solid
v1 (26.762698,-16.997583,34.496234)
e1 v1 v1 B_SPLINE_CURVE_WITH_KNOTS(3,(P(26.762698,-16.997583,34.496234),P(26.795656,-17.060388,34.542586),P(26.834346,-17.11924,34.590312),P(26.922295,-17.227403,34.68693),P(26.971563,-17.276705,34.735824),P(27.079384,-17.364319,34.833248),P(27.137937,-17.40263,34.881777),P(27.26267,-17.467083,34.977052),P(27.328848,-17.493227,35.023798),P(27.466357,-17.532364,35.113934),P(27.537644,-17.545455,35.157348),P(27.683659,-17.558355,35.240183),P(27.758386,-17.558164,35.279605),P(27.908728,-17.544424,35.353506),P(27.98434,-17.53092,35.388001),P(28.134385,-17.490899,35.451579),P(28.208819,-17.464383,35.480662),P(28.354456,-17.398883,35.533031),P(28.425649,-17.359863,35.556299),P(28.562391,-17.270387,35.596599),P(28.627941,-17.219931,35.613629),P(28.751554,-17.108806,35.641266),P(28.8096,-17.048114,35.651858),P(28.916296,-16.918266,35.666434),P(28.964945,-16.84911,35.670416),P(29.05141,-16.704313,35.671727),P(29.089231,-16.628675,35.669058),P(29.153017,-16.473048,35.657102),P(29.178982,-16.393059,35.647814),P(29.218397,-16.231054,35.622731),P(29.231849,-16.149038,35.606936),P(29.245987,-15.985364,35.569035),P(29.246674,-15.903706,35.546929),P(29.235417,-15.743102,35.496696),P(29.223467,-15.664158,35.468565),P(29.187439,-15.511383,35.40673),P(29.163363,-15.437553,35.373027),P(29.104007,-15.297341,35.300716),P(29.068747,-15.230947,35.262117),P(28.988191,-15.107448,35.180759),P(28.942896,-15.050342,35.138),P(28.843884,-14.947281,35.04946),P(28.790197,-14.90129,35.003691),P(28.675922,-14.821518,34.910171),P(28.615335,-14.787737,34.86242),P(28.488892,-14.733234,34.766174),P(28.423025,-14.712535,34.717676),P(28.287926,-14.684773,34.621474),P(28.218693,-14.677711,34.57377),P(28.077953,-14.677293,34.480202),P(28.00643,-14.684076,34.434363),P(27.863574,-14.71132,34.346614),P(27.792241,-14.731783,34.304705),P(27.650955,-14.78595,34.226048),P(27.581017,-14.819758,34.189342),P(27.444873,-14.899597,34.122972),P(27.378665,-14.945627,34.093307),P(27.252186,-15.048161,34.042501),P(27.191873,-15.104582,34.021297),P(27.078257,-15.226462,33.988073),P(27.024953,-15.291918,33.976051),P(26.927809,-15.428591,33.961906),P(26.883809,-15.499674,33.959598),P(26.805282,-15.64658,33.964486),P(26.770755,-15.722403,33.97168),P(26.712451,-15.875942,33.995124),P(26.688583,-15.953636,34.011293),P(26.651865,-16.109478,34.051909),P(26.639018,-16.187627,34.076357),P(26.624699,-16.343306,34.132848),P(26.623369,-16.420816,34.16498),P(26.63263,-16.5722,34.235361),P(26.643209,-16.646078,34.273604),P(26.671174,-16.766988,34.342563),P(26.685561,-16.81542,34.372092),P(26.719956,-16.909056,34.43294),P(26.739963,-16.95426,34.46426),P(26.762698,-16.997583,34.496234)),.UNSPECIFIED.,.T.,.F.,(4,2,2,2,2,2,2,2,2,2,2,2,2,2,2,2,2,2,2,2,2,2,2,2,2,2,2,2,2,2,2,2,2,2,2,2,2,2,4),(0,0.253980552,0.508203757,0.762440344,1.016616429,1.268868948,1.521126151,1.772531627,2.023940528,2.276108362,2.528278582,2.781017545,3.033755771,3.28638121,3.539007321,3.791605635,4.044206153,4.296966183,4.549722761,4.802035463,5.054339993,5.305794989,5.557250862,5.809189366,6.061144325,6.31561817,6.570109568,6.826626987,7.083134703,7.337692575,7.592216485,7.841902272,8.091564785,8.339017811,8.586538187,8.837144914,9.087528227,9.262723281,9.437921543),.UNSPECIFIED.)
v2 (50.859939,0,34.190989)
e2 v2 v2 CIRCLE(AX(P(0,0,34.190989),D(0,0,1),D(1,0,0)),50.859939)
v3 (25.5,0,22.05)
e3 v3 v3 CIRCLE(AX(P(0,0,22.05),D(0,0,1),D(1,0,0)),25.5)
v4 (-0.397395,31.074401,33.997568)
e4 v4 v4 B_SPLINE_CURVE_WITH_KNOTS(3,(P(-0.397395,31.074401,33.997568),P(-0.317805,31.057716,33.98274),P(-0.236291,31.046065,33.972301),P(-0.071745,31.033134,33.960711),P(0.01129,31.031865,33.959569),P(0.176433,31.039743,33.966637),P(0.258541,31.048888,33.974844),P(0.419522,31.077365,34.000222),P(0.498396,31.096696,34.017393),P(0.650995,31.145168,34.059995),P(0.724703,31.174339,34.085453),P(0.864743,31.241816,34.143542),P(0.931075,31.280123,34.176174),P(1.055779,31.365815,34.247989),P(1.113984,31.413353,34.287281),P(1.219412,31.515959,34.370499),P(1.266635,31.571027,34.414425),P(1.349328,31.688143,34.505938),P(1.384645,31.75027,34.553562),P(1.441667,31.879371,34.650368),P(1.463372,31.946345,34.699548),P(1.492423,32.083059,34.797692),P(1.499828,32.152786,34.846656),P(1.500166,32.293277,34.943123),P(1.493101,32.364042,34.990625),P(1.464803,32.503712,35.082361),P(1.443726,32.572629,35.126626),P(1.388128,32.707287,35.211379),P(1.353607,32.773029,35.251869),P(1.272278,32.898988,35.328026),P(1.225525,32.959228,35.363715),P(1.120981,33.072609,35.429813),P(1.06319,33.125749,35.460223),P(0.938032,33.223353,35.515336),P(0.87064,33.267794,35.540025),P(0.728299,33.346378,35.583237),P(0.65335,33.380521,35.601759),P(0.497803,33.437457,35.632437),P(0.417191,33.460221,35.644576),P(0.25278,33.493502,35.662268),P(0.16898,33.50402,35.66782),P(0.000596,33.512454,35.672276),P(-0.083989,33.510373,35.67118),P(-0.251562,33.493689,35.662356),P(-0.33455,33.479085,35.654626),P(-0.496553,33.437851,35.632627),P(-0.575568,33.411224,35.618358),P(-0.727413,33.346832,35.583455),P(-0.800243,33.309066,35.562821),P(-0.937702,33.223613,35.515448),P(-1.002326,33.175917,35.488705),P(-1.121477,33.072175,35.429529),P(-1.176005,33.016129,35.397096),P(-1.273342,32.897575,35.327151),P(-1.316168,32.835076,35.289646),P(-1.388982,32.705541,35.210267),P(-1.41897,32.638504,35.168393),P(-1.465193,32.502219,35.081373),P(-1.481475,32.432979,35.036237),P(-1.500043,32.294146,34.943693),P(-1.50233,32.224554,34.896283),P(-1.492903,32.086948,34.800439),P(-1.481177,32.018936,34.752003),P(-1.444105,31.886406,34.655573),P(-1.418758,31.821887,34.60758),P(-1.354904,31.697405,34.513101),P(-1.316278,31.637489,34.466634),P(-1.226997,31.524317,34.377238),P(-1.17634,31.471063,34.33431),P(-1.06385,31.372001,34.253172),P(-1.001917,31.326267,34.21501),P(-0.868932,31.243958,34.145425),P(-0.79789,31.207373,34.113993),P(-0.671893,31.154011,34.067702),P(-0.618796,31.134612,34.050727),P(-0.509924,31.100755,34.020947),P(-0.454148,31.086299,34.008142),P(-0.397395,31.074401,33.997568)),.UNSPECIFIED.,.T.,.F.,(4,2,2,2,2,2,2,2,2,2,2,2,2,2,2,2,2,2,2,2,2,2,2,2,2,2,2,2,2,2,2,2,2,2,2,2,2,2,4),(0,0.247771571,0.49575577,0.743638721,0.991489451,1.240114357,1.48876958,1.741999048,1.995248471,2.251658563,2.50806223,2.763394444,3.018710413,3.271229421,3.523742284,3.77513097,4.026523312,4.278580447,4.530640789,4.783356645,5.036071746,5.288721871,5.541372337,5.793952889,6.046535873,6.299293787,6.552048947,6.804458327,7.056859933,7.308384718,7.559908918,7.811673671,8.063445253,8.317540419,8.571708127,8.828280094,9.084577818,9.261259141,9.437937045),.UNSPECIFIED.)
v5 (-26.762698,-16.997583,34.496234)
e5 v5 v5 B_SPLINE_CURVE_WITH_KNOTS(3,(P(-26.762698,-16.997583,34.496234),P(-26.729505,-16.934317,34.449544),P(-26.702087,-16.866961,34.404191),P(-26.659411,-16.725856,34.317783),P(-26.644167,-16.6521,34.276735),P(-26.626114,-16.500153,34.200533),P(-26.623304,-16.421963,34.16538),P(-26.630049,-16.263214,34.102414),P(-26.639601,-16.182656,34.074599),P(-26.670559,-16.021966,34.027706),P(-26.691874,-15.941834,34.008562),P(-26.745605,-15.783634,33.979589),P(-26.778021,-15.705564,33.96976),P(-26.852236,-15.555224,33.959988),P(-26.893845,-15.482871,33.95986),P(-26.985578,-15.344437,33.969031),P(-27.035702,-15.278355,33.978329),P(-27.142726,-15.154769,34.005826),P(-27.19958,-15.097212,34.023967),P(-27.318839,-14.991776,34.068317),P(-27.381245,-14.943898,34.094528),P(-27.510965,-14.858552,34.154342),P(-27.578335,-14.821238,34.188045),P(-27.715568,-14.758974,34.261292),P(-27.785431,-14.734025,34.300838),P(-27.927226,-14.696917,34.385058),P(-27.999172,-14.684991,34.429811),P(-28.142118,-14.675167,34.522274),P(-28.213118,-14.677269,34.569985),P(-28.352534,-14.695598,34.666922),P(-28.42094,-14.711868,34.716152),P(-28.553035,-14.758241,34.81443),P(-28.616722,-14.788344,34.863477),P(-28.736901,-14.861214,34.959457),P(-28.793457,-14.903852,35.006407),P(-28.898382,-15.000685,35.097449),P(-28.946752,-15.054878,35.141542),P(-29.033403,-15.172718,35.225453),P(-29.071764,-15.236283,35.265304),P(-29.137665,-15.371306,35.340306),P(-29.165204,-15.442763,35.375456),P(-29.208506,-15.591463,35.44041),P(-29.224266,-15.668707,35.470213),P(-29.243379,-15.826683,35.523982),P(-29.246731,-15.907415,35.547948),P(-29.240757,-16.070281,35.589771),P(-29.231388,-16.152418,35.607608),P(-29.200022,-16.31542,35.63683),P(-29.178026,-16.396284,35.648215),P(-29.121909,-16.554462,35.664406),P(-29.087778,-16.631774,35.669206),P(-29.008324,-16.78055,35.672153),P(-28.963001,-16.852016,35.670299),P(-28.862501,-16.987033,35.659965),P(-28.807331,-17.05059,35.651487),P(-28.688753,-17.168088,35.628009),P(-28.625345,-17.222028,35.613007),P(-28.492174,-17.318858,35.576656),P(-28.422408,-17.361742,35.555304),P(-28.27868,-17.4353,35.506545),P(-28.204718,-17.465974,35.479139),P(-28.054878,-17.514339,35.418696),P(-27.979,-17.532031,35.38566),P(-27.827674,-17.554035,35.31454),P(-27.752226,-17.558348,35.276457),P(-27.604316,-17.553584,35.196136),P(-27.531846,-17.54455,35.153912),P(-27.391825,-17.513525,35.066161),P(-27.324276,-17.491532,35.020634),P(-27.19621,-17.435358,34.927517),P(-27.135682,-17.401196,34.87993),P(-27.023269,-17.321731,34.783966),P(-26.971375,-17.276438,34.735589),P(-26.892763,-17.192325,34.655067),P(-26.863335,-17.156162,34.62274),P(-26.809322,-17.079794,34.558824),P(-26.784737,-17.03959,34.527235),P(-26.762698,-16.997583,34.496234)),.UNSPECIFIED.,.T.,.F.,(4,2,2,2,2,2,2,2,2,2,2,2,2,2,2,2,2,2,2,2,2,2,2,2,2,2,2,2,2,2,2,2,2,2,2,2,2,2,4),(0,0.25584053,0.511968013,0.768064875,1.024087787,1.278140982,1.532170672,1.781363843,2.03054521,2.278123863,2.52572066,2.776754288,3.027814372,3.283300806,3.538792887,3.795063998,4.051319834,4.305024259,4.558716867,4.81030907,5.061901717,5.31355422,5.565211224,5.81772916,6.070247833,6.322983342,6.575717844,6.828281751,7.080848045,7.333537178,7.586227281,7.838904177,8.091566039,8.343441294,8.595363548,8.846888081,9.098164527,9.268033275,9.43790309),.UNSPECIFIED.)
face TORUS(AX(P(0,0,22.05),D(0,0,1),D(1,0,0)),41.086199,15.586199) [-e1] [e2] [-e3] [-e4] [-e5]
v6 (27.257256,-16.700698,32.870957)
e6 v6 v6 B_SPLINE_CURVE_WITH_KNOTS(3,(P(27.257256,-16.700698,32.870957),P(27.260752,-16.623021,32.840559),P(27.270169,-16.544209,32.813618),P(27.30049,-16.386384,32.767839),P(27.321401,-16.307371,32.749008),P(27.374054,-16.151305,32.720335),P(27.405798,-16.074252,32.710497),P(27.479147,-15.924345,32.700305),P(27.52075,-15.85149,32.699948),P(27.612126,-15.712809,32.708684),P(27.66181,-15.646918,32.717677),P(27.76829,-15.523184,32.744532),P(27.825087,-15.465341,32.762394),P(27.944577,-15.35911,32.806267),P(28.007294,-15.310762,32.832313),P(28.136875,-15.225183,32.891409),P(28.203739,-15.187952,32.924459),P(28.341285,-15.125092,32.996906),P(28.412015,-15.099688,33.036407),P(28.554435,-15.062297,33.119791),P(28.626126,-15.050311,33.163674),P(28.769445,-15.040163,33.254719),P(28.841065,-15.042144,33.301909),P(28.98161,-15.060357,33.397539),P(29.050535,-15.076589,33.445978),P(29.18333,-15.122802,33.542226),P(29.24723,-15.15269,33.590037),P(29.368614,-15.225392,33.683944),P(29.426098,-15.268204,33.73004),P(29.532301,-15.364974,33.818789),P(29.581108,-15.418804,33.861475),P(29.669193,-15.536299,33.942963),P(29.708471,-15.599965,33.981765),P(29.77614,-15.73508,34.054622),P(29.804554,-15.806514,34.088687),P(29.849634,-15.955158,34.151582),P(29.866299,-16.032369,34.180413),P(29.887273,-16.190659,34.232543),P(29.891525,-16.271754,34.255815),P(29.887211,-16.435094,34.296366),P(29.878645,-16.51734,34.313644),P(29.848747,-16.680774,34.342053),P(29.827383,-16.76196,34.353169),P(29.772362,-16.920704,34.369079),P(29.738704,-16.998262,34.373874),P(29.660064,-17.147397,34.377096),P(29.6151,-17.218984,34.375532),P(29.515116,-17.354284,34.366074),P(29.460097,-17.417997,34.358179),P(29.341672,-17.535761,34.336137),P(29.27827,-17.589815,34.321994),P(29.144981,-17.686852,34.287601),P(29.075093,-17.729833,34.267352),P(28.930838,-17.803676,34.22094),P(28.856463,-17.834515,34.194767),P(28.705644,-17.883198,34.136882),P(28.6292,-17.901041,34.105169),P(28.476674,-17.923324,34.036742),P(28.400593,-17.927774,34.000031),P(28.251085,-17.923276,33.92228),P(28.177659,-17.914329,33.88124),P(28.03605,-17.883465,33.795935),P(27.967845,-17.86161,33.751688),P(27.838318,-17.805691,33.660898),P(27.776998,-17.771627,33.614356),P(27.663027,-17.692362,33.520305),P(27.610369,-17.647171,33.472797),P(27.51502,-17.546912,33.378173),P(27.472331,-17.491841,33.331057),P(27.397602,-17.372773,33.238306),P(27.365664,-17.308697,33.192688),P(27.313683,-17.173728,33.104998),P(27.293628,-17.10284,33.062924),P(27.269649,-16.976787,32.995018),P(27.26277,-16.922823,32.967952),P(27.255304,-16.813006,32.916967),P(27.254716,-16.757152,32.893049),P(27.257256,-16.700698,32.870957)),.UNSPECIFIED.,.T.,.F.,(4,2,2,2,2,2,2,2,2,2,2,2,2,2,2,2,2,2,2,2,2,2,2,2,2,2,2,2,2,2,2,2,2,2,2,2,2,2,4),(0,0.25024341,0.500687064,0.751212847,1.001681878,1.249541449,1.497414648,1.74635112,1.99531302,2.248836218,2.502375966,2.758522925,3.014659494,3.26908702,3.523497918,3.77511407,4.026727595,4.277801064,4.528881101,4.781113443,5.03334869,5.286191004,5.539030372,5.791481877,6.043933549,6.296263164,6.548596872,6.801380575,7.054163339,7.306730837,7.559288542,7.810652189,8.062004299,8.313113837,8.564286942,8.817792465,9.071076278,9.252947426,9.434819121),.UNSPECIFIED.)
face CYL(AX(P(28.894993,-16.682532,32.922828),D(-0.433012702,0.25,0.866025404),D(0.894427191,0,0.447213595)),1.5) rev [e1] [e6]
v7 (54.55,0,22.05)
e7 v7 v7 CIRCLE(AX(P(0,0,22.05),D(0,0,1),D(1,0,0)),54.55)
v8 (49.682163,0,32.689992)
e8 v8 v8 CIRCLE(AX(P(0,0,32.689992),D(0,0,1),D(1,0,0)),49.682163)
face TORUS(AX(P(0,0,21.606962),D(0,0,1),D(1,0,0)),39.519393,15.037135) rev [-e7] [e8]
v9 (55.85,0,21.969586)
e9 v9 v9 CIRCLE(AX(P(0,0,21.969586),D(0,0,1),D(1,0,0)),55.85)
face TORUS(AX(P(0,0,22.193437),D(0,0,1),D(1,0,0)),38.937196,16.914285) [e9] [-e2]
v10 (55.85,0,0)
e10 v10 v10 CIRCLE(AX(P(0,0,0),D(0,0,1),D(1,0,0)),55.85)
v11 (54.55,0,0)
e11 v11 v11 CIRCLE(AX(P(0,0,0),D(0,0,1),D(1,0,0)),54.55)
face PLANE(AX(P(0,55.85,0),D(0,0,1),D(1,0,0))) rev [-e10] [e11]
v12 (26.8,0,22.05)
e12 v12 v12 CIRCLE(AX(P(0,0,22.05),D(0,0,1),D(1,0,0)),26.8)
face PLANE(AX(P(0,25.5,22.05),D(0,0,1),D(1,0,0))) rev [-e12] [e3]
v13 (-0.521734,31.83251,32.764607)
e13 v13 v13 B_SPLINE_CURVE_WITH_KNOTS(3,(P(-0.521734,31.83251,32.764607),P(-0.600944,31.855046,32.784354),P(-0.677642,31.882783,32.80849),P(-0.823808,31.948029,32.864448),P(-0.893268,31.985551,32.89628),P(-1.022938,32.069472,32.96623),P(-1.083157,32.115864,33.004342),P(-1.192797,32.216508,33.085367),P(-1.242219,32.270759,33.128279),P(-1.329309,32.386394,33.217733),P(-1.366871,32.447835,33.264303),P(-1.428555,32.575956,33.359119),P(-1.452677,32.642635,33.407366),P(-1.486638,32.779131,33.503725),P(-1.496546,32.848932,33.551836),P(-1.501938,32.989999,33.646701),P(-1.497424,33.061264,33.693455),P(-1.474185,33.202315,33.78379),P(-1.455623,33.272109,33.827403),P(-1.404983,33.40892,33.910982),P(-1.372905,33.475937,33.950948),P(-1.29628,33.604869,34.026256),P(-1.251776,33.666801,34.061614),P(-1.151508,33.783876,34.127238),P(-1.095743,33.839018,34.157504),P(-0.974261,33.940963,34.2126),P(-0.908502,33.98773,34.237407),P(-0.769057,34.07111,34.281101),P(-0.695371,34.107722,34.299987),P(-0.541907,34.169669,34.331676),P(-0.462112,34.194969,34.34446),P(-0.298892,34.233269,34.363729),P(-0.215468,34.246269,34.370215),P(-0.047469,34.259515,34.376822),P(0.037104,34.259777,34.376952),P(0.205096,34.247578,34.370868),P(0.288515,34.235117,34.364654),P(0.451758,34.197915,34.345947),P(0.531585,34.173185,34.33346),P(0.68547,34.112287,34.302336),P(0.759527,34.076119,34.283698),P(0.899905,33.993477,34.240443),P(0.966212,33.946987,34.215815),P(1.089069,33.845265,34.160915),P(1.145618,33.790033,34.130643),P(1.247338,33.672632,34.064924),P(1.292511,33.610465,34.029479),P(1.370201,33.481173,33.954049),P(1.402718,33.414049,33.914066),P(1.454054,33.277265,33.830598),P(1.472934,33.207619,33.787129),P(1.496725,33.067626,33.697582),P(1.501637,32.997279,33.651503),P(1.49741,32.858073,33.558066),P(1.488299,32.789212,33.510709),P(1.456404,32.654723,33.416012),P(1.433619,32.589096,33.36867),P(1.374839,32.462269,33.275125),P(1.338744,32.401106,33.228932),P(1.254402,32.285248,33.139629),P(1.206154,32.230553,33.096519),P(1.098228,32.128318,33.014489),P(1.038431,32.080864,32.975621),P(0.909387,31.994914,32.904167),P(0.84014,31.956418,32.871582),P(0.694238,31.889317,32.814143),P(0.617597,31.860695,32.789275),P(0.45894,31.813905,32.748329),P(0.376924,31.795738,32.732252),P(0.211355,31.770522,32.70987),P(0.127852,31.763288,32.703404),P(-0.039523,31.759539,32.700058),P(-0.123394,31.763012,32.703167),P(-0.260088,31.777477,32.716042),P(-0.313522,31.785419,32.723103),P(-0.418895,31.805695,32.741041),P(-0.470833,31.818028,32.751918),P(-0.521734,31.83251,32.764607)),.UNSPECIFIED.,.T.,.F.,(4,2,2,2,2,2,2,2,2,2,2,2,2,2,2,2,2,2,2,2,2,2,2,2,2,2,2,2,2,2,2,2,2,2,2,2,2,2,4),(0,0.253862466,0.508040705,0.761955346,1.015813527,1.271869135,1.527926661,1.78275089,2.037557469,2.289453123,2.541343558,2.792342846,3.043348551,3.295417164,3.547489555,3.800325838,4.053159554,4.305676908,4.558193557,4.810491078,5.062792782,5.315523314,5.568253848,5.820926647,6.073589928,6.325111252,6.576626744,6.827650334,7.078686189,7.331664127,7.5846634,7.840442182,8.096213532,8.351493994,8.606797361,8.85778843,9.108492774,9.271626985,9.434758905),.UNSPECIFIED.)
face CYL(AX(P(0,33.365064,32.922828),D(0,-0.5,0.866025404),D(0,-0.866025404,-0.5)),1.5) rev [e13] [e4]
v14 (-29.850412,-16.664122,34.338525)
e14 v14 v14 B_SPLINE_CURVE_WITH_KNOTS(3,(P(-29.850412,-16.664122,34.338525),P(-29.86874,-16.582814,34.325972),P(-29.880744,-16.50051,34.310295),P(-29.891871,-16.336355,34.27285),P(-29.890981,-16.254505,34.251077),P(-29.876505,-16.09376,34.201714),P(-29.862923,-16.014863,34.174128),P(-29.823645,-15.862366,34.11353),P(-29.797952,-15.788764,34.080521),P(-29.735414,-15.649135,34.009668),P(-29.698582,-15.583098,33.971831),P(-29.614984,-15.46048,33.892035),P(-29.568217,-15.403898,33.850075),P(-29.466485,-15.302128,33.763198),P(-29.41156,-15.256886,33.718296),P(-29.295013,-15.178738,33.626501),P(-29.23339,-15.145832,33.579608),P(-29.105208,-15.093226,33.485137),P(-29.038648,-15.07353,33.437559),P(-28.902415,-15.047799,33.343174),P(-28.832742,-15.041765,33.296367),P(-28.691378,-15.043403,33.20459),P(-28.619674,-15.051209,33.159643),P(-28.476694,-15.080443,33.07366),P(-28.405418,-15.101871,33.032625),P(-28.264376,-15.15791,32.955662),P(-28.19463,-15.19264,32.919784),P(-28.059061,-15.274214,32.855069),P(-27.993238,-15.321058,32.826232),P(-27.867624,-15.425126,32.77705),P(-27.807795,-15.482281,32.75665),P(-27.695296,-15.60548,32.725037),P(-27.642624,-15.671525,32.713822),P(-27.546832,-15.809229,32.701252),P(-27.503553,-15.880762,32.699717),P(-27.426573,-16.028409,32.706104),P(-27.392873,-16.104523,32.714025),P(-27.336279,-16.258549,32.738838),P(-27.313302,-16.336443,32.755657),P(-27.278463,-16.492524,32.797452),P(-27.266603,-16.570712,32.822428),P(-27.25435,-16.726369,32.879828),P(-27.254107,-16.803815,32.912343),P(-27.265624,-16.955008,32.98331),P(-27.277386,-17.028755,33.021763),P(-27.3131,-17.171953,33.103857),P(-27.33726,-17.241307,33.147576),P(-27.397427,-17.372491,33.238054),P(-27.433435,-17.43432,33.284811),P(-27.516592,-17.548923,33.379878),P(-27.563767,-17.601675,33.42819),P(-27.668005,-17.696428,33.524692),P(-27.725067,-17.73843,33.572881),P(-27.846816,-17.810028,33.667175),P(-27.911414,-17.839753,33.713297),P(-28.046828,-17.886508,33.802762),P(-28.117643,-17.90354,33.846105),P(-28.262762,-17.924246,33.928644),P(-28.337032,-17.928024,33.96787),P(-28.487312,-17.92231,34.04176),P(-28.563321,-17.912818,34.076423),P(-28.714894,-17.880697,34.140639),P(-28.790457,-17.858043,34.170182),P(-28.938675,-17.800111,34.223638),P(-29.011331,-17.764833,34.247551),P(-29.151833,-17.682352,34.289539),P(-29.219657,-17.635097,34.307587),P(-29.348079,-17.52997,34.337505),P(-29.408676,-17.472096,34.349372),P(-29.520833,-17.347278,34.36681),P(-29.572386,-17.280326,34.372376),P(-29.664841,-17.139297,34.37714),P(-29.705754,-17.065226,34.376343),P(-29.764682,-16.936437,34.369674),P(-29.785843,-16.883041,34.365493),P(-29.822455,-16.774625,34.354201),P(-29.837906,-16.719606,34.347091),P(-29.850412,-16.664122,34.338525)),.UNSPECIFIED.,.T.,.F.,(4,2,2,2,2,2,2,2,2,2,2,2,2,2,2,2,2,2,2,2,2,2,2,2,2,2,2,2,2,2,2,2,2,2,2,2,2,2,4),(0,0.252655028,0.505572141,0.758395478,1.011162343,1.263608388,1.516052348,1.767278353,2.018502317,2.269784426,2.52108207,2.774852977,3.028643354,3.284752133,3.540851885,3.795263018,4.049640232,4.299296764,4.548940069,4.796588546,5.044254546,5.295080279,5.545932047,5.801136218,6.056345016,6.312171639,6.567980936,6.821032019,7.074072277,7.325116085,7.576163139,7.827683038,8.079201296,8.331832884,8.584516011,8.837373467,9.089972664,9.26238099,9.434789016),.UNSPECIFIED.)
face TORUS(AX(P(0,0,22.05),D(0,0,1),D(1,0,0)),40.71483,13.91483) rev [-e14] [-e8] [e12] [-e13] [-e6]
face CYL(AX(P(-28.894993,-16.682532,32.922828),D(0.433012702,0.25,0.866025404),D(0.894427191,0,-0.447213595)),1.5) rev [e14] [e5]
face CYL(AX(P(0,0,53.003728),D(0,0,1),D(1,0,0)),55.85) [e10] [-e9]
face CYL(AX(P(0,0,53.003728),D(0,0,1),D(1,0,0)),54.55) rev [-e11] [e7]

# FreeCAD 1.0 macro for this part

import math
import FreeCAD as App
import Part
import Sketcher
Q = App.Units.Quantity

doc = App.newDocument("Part")
params = doc.addObject("Spreadsheet::Sheet", "Params")
for row, (alias, value) in enumerate([
    ("sketch1_width", "1.3 mm"),
    ("sketch1_height", "22.05 mm"),
    ("revolution_angle", "360 deg"),
    ("sketch2_diameter", "3 mm"),
    ("pocket1_length", "3 mm"),
], start=1):
    params.set(f"A{row}", alias)
    params.set(f"B{row}", "=" + value)
    params.setAlias(f"B{row}", alias)

body = doc.addObject("PartDesign::Body", "Body")

sketch1 = doc.addObject("Sketcher::SketchObject", "Sketch")
body.addObject(sketch1)
sketch1.AttachmentSupport = (doc.YZ_Plane, [""])
sketch1.MapMode = "FlatFace"
sketch1.addGeometry([
    Part.LineSegment(App.Vector(25.5, 22.1, 0), App.Vector(26.8, 22.1, 0)),
    Part.ArcOfCircle(Part.Circle(App.Vector(40.7, 22, 0), App.Vector(0, 0, 1), 13.9), math.radians(50), math.radians(180)),
    Part.ArcOfCircle(Part.Circle(App.Vector(39.5, 21.6, 0), App.Vector(0, 0, 1), 15), math.radians(2), math.radians(47)),
    Part.LineSegment(App.Vector(54.5, 22.1, 0), App.Vector(54.5, 0, 0)),
    Part.LineSegment(App.Vector(54.5, 0, 0), App.Vector(55.9, 0, 0)),
    Part.LineSegment(App.Vector(55.9, 0, 0), App.Vector(55.9, 22, 0)),
    Part.ArcOfCircle(Part.Circle(App.Vector(38.9, 22.2, 0), App.Vector(0, 0, 1), 16.9), math.radians(-1), math.radians(45)),
    Part.ArcOfCircle(Part.Circle(App.Vector(41.1, 22.1, 0), App.Vector(0, 0, 1), 15.6), math.radians(51), math.radians(180)),
], False)
sketch1.addConstraint([
    Sketcher.Constraint("Coincident", 0, 2, 1, 2),
    Sketcher.Constraint("Coincident", 1, 1, 2, 2),
    Sketcher.Constraint("Coincident", 2, 1, 3, 1),
    Sketcher.Constraint("Coincident", 3, 2, 4, 1),
    Sketcher.Constraint("Coincident", 4, 2, 5, 1),
    Sketcher.Constraint("Coincident", 5, 2, 6, 1),
    Sketcher.Constraint("Coincident", 6, 2, 7, 1),
    Sketcher.Constraint("Coincident", 7, 2, 0, 1),
    Sketcher.Constraint("Horizontal", 0),
    Sketcher.Constraint("Vertical", 3),
    Sketcher.Constraint("Horizontal", 4),
    Sketcher.Constraint("Vertical", 5),
    Sketcher.Constraint("PointOnObject", 3, 2, -1),
    Sketcher.Constraint("Horizontal", 1, 3, 7, 3),
    Sketcher.Constraint("Horizontal", 7, 3, 0, 2),
    Sketcher.Constraint("Horizontal", 0, 2, 2, 1),
    Sketcher.Constraint("Equal", 0, 4),
    Sketcher.Constraint("DistanceX", 0, 1, 0, 2, Q("1.3 mm")),
    Sketcher.Constraint("DistanceY", 3, 2, 3, 1, Q("22.05 mm")),
    Sketcher.Constraint("DistanceX", -1, 1, 0, 2, Q("26.8 mm")),
    Sketcher.Constraint("Radius", 7, Q("15.586199 mm")),
    Sketcher.Constraint("DistanceX", -1, 1, 2, 1, Q("54.55 mm")),
    Sketcher.Constraint("Radius", 1, Q("13.91483 mm")),
    Sketcher.Constraint("Radius", 2, Q("15.037135 mm")),
    Sketcher.Constraint("Radius", 6, Q("16.914285 mm")),
    Sketcher.Constraint("DistanceY", 5, 1, 5, 2, Q("21.969586 mm")),
    Sketcher.Constraint("DistanceY", -1, 1, 1, 1, Q("32.689992 mm")),
    Sketcher.Constraint("DistanceX", -1, 1, 6, 2, Q("50.859939 mm")),
])
sketch1.setExpression("Constraints[17]", "Params.sketch1_width")
sketch1.setExpression("Constraints[18]", "Params.sketch1_height")
revolution = doc.addObject("PartDesign::Revolution", "Revolution")
body.addObject(revolution)
revolution.Profile = sketch1
revolution.ReferenceAxis = (sketch1, ["V_Axis"])
revolution.setExpression("Angle", "Params.revolution_angle")

sketch2 = doc.addObject("Sketcher::SketchObject", "Sketch001")
body.addObject(sketch2)
sketch2.Placement = App.Placement(App.Vector(0, -7.414737, 12.842701), App.Rotation(App.Vector(-1, 0, 0), App.Vector(0, 0.866025404, 0.5), App.Vector(0, 0.5, -0.866025404), "ZXY"))
sketch2.addGeometry(Part.Circle(App.Vector(0, 45.4, 0), App.Vector(0, 0, 1), 1.5), False)
sketch2.addConstraint([
    Sketcher.Constraint("PointOnObject", 0, 3, -2),
    Sketcher.Constraint("Diameter", 0, Q("3 mm")),
    Sketcher.Constraint("DistanceY", -1, 1, 0, 3, Q("45.356406 mm")),
])
sketch2.setExpression("Constraints[1]", "Params.sketch2_diameter")
pocket1 = doc.addObject("PartDesign::Pocket", "Pocket")
body.addObject(pocket1)
pocket1.Profile = sketch2
pocket1.setExpression("Length", "Params.pocket1_length")
pocket1.Reversed = True
doc.recompute()

polarpattern = doc.addObject("PartDesign::PolarPattern", "PolarPattern")
body.addObject(polarpattern)
polarpattern.Originals = [pocket1]
polarpattern.Axis = (doc.Z_Axis, [""])
polarpattern.Angle = 360
polarpattern.Occurrences = 3
body.Tip = polarpattern

doc.recompute()
